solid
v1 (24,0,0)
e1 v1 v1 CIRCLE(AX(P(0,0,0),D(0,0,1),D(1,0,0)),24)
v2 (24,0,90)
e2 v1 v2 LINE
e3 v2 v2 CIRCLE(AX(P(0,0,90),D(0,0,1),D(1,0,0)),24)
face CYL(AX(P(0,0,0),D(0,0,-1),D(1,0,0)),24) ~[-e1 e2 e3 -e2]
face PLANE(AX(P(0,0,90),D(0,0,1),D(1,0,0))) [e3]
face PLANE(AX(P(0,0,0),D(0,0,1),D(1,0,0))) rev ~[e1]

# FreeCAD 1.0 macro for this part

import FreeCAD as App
import Part
import Sketcher
from FreeCAD import Vector

doc = App.newDocument("Part")
params = doc.addObject("Spreadsheet::Sheet", "Params")
for row, (alias, value) in enumerate([
    ("sketch1_diameter", "48 mm"),
    ("pad1_length", "90 mm"),
], start=1):
    params.set(f"A{row}", alias)
    params.set(f"B{row}", "=" + value)
    params.setAlias(f"B{row}", alias)

body = doc.addObject("PartDesign::Body", "Body")

# Sketch on XY plane
sketch1 = body.newObject("Sketcher::SketchObject", "Sketch")
sketch1.AttachmentSupport = (doc.getObject("XY_Plane"), [""])
sketch1.MapMode = "FlatFace"
sketch1.addGeometry(Part.Circle(Vector(0, 0, 0), Vector(0, 0, 1), 24), False)
sketch1.addConstraint(Sketcher.Constraint("Coincident", 0, 3, -1, 1))
sketch1.addConstraint(Sketcher.Constraint("Diameter", 0, 48.0))
sketch1.setExpression("Constraints[1]", "Params.sketch1_diameter")
pad1 = body.newObject("PartDesign::Pad", "Pad")
pad1.Profile = sketch1
pad1.setExpression("Length", "Params.pad1_length")

doc.recompute()
